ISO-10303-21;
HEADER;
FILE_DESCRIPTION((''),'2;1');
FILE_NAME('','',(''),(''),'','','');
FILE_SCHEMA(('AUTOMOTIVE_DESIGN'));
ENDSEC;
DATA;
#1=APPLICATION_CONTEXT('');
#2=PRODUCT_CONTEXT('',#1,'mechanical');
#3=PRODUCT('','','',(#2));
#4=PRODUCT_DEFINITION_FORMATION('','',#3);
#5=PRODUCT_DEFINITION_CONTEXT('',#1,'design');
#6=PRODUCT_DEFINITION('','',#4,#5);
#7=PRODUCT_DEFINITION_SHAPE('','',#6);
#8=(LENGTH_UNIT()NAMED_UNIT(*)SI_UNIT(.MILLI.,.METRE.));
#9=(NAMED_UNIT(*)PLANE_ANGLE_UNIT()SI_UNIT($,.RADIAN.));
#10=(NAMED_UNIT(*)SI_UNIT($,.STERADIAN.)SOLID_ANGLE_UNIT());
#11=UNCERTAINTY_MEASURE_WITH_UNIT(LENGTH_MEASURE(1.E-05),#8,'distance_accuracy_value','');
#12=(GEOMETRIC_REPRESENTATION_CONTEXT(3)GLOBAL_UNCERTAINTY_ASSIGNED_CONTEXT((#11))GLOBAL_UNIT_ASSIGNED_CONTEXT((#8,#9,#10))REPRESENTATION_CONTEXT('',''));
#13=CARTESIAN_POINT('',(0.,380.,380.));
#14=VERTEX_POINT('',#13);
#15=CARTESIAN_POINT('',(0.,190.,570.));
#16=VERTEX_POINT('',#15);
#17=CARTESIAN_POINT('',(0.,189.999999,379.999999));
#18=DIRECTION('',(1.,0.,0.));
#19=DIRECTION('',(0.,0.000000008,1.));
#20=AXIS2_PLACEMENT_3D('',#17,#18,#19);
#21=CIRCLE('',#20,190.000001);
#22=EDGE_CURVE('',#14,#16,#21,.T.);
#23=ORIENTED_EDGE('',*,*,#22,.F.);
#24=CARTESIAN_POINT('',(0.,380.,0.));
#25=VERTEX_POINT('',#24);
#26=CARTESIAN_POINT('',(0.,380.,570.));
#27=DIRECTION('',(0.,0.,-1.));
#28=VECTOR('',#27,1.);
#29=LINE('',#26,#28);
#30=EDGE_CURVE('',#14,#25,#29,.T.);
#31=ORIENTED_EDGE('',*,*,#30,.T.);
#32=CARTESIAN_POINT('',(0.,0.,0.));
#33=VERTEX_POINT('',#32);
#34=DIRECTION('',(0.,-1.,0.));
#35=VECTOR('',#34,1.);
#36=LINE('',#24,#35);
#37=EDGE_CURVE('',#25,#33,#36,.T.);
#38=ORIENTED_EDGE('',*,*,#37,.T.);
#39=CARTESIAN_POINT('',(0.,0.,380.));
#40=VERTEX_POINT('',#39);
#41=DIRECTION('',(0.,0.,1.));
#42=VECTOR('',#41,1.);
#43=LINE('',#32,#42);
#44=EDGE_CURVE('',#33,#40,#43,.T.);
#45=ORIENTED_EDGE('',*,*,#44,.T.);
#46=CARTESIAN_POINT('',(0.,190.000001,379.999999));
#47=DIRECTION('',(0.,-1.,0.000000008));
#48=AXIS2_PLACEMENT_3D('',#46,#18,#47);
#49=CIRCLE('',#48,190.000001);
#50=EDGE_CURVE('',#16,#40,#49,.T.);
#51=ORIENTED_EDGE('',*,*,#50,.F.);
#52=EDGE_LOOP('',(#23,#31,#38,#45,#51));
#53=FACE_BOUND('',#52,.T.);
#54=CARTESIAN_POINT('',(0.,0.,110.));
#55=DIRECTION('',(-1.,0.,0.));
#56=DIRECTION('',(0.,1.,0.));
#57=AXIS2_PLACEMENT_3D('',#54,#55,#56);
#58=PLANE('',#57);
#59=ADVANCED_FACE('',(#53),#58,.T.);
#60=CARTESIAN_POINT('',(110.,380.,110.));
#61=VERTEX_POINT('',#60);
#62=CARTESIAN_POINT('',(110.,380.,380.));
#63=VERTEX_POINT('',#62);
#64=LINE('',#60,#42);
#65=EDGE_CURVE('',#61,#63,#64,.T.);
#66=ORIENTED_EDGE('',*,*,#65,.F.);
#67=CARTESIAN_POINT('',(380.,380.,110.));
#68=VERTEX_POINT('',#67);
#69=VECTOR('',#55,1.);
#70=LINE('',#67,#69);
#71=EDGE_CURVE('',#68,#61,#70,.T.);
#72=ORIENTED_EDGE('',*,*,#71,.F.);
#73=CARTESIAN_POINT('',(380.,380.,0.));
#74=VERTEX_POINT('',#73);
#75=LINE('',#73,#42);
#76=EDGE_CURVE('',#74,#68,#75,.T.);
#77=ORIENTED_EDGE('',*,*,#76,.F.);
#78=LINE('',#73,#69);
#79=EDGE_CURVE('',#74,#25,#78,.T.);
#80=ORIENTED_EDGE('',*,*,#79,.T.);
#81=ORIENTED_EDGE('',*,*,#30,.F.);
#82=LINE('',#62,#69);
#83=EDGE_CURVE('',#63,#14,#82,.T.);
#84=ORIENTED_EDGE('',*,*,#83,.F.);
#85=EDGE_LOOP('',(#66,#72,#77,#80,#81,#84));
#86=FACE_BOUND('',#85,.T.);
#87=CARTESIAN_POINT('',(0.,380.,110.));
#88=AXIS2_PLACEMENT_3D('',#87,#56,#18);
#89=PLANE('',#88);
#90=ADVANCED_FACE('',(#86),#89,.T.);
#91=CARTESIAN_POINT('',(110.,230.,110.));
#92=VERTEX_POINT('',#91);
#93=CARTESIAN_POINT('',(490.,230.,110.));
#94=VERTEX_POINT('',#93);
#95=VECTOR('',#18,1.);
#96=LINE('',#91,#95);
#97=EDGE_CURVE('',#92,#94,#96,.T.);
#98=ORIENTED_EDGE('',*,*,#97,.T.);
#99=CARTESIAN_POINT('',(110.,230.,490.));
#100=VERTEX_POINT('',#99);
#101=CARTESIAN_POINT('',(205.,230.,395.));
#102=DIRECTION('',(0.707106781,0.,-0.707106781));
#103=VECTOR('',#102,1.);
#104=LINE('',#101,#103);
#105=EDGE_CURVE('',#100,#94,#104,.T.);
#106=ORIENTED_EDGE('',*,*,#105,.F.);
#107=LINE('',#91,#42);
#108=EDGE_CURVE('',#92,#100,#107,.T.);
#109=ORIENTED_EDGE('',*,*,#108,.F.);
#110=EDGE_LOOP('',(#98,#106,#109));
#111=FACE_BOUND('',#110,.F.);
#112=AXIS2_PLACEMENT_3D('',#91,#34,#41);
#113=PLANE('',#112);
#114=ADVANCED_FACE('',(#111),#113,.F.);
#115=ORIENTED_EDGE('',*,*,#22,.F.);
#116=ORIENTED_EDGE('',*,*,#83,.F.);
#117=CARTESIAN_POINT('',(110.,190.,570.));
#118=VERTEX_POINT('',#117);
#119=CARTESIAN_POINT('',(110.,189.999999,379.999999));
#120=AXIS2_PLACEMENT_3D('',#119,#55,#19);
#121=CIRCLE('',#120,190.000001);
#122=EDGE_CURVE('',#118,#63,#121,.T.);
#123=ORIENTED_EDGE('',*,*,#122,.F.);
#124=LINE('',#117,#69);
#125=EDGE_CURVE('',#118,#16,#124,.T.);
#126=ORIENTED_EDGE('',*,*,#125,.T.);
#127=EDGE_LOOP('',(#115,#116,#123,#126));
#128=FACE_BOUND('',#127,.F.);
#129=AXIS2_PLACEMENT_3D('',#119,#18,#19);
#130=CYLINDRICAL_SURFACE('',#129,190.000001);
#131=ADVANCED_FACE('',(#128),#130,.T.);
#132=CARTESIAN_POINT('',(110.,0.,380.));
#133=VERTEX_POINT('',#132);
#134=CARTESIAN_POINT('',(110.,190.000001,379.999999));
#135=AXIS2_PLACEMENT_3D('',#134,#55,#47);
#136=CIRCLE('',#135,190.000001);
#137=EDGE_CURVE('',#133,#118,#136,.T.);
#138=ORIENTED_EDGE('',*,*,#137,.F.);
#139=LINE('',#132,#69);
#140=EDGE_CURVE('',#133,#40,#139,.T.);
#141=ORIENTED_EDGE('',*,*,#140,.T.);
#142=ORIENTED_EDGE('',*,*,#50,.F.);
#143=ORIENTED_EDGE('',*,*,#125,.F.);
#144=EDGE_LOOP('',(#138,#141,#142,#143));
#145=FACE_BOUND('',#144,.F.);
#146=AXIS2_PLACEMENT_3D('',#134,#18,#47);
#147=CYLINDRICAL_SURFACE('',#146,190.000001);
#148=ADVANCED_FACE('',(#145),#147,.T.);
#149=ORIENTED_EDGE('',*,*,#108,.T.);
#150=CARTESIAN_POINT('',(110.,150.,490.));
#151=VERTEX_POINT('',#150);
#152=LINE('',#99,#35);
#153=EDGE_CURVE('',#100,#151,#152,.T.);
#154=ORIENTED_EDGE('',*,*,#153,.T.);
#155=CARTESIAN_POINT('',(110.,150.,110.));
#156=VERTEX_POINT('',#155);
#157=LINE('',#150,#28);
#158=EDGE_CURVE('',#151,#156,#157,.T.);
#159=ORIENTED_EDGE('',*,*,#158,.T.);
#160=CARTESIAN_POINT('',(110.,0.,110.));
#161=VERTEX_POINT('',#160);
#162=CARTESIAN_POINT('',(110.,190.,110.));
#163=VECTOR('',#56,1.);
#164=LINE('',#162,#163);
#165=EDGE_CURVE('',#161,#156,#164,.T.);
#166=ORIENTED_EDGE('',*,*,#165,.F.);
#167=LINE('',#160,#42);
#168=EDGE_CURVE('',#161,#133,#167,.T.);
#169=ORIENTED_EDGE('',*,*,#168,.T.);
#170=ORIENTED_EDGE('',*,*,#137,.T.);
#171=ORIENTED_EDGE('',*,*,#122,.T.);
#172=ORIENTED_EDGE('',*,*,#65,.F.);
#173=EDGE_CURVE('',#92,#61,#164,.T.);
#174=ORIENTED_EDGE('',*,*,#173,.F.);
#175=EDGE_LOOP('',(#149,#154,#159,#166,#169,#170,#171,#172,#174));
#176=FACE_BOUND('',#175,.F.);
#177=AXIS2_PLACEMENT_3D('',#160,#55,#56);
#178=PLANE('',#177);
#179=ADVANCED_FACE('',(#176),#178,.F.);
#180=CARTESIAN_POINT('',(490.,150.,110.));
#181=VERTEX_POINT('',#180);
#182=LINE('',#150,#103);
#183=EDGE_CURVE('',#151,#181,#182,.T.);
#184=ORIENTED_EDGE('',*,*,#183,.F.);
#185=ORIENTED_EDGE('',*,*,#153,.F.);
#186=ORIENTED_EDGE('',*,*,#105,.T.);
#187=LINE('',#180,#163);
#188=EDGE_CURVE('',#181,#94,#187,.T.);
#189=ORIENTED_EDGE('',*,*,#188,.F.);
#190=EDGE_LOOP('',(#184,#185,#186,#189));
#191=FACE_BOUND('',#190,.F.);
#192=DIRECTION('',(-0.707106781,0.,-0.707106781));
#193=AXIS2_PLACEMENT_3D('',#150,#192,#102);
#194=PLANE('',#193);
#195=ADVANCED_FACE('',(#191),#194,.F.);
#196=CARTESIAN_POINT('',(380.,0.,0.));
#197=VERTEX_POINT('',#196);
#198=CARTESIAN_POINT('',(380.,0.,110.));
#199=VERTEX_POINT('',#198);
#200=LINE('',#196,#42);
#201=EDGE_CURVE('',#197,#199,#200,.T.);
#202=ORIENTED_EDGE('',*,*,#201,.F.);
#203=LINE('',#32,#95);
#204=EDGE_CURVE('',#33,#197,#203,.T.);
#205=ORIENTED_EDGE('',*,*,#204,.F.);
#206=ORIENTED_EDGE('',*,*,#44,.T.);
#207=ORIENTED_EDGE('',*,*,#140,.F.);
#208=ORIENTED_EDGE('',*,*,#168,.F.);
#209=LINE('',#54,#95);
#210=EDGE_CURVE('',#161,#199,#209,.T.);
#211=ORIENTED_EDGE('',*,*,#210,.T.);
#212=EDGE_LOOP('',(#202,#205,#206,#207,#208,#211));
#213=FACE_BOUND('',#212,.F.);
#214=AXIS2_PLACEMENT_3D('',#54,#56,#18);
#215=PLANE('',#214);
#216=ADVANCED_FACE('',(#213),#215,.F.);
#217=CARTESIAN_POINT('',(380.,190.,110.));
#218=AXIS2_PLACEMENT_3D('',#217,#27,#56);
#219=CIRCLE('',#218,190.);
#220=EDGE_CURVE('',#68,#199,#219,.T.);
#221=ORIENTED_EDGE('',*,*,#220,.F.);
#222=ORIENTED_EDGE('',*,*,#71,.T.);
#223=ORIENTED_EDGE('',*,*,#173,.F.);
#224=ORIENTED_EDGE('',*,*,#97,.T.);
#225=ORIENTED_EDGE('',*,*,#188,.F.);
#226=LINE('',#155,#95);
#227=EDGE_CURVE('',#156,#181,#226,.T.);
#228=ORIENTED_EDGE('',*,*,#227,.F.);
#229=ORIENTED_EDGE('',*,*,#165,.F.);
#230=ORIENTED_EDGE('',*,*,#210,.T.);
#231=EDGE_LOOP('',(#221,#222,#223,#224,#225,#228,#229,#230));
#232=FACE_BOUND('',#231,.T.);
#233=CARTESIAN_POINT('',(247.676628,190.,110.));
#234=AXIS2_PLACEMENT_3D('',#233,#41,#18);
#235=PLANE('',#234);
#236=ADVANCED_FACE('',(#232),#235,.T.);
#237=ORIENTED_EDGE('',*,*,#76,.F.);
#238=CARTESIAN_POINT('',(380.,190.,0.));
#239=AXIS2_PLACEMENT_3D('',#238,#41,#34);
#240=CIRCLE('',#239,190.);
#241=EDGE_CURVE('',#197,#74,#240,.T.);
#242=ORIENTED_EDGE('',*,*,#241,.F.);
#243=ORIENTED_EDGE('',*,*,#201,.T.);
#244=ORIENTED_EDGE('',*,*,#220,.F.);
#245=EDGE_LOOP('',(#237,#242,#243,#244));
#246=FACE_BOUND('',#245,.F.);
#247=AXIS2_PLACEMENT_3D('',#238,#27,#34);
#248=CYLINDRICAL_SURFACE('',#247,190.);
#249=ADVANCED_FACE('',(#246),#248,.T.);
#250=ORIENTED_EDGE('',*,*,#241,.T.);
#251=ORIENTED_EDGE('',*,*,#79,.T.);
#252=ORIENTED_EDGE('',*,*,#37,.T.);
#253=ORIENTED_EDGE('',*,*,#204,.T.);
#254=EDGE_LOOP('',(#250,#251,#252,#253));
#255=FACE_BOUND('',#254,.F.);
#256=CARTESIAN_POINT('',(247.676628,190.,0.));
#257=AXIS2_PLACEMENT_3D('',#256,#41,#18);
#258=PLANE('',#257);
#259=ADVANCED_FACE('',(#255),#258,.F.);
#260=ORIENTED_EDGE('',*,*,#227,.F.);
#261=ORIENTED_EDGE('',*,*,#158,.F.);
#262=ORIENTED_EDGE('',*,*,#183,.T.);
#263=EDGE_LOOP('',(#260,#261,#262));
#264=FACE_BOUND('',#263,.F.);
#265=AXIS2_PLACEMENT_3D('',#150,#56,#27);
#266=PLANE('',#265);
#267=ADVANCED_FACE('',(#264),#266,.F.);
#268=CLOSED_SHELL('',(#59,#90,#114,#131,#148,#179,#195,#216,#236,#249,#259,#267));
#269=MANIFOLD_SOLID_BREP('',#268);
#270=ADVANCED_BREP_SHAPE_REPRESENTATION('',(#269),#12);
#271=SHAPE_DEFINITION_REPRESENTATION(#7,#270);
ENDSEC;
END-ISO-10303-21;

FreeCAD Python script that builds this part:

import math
import FreeCAD as App
import Part
import Sketcher

doc = App.newDocument("Part")
body = doc.addObject("PartDesign::Body", "Body")

# Sketch on XY plane
sketch1 = body.newObject("Sketcher::SketchObject", "Sketch")
sketch1.AttachmentSupport = (doc.getObject("XY_Plane"), [""])
sketch1.MapMode = "FlatFace"
sketch1.addGeometry([
    Part.LineSegment(App.Vector(0, 380, 0), App.Vector(0, 0, 0)),
    Part.LineSegment(App.Vector(0, 0, 0), App.Vector(380, 0, 0)),
    Part.ArcOfCircle(Part.Circle(App.Vector(380, 190, 0), App.Vector(0, 0, 1), 190), math.radians(-90), math.radians(90)),
    Part.LineSegment(App.Vector(380, 380, 0), App.Vector(0, 380, 0)),
], False)
sketch1.addConstraint([
    Sketcher.Constraint("Coincident", 0, 2, 1, 1),
    Sketcher.Constraint("Tangent", 1, 2, 2, 1),
    Sketcher.Constraint("Tangent", 2, 2, 3, 1),
    Sketcher.Constraint("Coincident", 3, 2, 0, 1),
    Sketcher.Constraint("Vertical", 0),
    Sketcher.Constraint("Horizontal", 1),
    Sketcher.Constraint("Horizontal", 3),
    Sketcher.Constraint("Coincident", 0, 2, -1, 1),
    Sketcher.Constraint("Equal", 3, 0),
    Sketcher.Constraint("Radius", 2, 190.0),
])
pad1 = body.newObject("PartDesign::Pad", "Pad")
pad1.Profile = sketch1
pad1.Length = 110

# Sketch on XY plane
sketch2 = body.newObject("Sketcher::SketchObject", "Sketch001")
sketch2.AttachmentSupport = (doc.getObject("XY_Plane"), [""])
sketch2.MapMode = "FlatFace"
sketch2.AttachmentOffset = App.Placement(App.Vector(0, 0, 110), App.Rotation())
sketch2.addGeometry([
    Part.LineSegment(App.Vector(0, 380, 0), App.Vector(0, 0, 0)),
    Part.LineSegment(App.Vector(0, 0, 0), App.Vector(110, 0, 0)),
    Part.LineSegment(App.Vector(110, 0, 0), App.Vector(110, 380, 0)),
    Part.LineSegment(App.Vector(110, 380, 0), App.Vector(0, 380, 0)),
], False)
sketch2.addConstraint([
    Sketcher.Constraint("Coincident", 0, 2, 1, 1),
    Sketcher.Constraint("Coincident", 1, 2, 2, 1),
    Sketcher.Constraint("Coincident", 2, 2, 3, 1),
    Sketcher.Constraint("Coincident", 3, 2, 0, 1),
    Sketcher.Constraint("Vertical", 0),
    Sketcher.Constraint("Horizontal", 1),
    Sketcher.Constraint("Vertical", 2),
    Sketcher.Constraint("Horizontal", 3),
    Sketcher.Constraint("Coincident", 0, 2, -1, 1),
    Sketcher.Constraint("DistanceX", 1, 1, 1, 2, 110.0),
    Sketcher.Constraint("DistanceY", 0, 2, 0, 1, 380.0),
])
pad2 = body.newObject("PartDesign::Pad", "Pad001")
pad2.Profile = sketch2
pad2.Length = 460

# Sketch on YZ plane
sketch3 = body.newObject("Sketcher::SketchObject", "Sketch002")
sketch3.AttachmentSupport = (doc.getObject("YZ_Plane"), [""])
sketch3.MapMode = "FlatFace"
sketch3.AttachmentOffset = App.Placement(App.Vector(0, 0, 110), App.Rotation())
sketch3.addGeometry([
    Part.LineSegment(App.Vector(380, 570, 0), App.Vector(190, 570, 0)),  # 0
    Part.ArcOfCircle(Part.Circle(App.Vector(190, 380, 0), App.Vector(0, 0, 1), 190), math.radians(0), math.radians(90)),  # 1
    Part.LineSegment(App.Vector(380, 380, 0), App.Vector(380, 570, 0)),  # 2
    Part.LineSegment(App.Vector(0, 570, 0), App.Vector(0, 380, 0)),  # 3
    Part.ArcOfCircle(Part.Circle(App.Vector(190, 380, 0), App.Vector(0, 0, 1), 190), math.radians(90), math.radians(180)),  # 4
    Part.LineSegment(App.Vector(190, 570, 0), App.Vector(0, 570, 0)),  # 5
], False)
sketch3.addConstraint([
    Sketcher.Constraint("Tangent", 0, 2, 1, 2),
    Sketcher.Constraint("Tangent", 1, 1, 2, 1),
    Sketcher.Constraint("Coincident", 2, 2, 0, 1),
    Sketcher.Constraint("Tangent", 3, 2, 4, 2),
    Sketcher.Constraint("Tangent", 4, 1, 5, 1),
    Sketcher.Constraint("Coincident", 5, 2, 3, 1),
    Sketcher.Constraint("Horizontal", 0),
    Sketcher.Constraint("Vertical", 2),
    Sketcher.Constraint("Vertical", 3),
    Sketcher.Constraint("Horizontal", 5),
    Sketcher.Constraint("Coincident", 4, 3, 1, 3),
    Sketcher.Constraint("Equal", 1, 4),
    Sketcher.Constraint("PointOnObject", 3, 2, -2),
    Sketcher.Constraint("Radius", 1, 190.000001),
    Sketcher.Constraint("DistanceY", -1, 1, 1, 3, 379.999999),
])
pocket1 = body.newObject("PartDesign::Pocket", "Pocket")
pocket1.Profile = sketch3
pocket1.Type = "ThroughAll"

# Sketch on YZ plane
sketch4 = body.newObject("Sketcher::SketchObject", "Sketch003")
sketch4.AttachmentSupport = (doc.getObject("YZ_Plane"), [""])
sketch4.MapMode = "FlatFace"
sketch4.AttachmentOffset = App.Placement(App.Vector(0, 0, 110), App.Rotation())
sketch4.addGeometry([
    Part.LineSegment(App.Vector(230, 490, 0), App.Vector(150, 490, 0)),
    Part.LineSegment(App.Vector(150, 490, 0), App.Vector(150, 110, 0)),
    Part.LineSegment(App.Vector(150, 110, 0), App.Vector(230, 110, 0)),
    Part.LineSegment(App.Vector(230, 110, 0), App.Vector(230, 490, 0)),
], False)
sketch4.addConstraint([
    Sketcher.Constraint("Coincident", 0, 2, 1, 1),
    Sketcher.Constraint("Coincident", 1, 2, 2, 1),
    Sketcher.Constraint("Coincident", 2, 2, 3, 1),
    Sketcher.Constraint("Coincident", 3, 2, 0, 1),
    Sketcher.Constraint("Horizontal", 0),
    Sketcher.Constraint("Vertical", 1),
    Sketcher.Constraint("Horizontal", 2),
    Sketcher.Constraint("Vertical", 3),
    Sketcher.Constraint("DistanceX", 0, 2, 0, 1, 80.0),
    Sketcher.Constraint("DistanceY", 1, 2, 1, 1, 380.0),
    Sketcher.Constraint("DistanceX", -1, 1, 0, 2, 150.0),
    Sketcher.Constraint("DistanceY", -1, 1, 0, 2, 490.0),
])
pad3 = body.newObject("PartDesign::Pad", "Pad002")
pad3.Profile = sketch4
pad3.Length = 380

# Sketch on XZ plane
sketch5 = body.newObject("Sketcher::SketchObject", "Sketch004")
sketch5.AttachmentSupport = (doc.getObject("XZ_Plane"), [""])
sketch5.MapMode = "FlatFace"
sketch5.AttachmentOffset = App.Placement(App.Vector(0, 0, -150), App.Rotation())
sketch5.addGeometry([
    Part.LineSegment(App.Vector(490, 490, 0), App.Vector(110, 490, 0)),
    Part.LineSegment(App.Vector(110, 490, 0), App.Vector(490, 110, 0)),
    Part.LineSegment(App.Vector(490, 110, 0), App.Vector(490, 490, 0)),
], False)
sketch5.addConstraint([
    Sketcher.Constraint("Coincident", 0, 2, 1, 1),
    Sketcher.Constraint("Coincident", 1, 2, 2, 1),
    Sketcher.Constraint("Coincident", 2, 2, 0, 1),
    Sketcher.Constraint("Horizontal", 0),
    Sketcher.Constraint("Vertical", 2),
    Sketcher.Constraint("Equal", 0, 2),
    Sketcher.Constraint("DistanceX", 0, 2, 0, 1, 380.0),
    Sketcher.Constraint("DistanceX", -1, 1, 0, 2, 110.0),
    Sketcher.Constraint("DistanceY", -1, 1, 0, 2, 490.0),
])
pocket2 = body.newObject("PartDesign::Pocket", "Pocket001")
pocket2.Profile = sketch5
pocket2.Type = "ThroughAll"

doc.recompute()
